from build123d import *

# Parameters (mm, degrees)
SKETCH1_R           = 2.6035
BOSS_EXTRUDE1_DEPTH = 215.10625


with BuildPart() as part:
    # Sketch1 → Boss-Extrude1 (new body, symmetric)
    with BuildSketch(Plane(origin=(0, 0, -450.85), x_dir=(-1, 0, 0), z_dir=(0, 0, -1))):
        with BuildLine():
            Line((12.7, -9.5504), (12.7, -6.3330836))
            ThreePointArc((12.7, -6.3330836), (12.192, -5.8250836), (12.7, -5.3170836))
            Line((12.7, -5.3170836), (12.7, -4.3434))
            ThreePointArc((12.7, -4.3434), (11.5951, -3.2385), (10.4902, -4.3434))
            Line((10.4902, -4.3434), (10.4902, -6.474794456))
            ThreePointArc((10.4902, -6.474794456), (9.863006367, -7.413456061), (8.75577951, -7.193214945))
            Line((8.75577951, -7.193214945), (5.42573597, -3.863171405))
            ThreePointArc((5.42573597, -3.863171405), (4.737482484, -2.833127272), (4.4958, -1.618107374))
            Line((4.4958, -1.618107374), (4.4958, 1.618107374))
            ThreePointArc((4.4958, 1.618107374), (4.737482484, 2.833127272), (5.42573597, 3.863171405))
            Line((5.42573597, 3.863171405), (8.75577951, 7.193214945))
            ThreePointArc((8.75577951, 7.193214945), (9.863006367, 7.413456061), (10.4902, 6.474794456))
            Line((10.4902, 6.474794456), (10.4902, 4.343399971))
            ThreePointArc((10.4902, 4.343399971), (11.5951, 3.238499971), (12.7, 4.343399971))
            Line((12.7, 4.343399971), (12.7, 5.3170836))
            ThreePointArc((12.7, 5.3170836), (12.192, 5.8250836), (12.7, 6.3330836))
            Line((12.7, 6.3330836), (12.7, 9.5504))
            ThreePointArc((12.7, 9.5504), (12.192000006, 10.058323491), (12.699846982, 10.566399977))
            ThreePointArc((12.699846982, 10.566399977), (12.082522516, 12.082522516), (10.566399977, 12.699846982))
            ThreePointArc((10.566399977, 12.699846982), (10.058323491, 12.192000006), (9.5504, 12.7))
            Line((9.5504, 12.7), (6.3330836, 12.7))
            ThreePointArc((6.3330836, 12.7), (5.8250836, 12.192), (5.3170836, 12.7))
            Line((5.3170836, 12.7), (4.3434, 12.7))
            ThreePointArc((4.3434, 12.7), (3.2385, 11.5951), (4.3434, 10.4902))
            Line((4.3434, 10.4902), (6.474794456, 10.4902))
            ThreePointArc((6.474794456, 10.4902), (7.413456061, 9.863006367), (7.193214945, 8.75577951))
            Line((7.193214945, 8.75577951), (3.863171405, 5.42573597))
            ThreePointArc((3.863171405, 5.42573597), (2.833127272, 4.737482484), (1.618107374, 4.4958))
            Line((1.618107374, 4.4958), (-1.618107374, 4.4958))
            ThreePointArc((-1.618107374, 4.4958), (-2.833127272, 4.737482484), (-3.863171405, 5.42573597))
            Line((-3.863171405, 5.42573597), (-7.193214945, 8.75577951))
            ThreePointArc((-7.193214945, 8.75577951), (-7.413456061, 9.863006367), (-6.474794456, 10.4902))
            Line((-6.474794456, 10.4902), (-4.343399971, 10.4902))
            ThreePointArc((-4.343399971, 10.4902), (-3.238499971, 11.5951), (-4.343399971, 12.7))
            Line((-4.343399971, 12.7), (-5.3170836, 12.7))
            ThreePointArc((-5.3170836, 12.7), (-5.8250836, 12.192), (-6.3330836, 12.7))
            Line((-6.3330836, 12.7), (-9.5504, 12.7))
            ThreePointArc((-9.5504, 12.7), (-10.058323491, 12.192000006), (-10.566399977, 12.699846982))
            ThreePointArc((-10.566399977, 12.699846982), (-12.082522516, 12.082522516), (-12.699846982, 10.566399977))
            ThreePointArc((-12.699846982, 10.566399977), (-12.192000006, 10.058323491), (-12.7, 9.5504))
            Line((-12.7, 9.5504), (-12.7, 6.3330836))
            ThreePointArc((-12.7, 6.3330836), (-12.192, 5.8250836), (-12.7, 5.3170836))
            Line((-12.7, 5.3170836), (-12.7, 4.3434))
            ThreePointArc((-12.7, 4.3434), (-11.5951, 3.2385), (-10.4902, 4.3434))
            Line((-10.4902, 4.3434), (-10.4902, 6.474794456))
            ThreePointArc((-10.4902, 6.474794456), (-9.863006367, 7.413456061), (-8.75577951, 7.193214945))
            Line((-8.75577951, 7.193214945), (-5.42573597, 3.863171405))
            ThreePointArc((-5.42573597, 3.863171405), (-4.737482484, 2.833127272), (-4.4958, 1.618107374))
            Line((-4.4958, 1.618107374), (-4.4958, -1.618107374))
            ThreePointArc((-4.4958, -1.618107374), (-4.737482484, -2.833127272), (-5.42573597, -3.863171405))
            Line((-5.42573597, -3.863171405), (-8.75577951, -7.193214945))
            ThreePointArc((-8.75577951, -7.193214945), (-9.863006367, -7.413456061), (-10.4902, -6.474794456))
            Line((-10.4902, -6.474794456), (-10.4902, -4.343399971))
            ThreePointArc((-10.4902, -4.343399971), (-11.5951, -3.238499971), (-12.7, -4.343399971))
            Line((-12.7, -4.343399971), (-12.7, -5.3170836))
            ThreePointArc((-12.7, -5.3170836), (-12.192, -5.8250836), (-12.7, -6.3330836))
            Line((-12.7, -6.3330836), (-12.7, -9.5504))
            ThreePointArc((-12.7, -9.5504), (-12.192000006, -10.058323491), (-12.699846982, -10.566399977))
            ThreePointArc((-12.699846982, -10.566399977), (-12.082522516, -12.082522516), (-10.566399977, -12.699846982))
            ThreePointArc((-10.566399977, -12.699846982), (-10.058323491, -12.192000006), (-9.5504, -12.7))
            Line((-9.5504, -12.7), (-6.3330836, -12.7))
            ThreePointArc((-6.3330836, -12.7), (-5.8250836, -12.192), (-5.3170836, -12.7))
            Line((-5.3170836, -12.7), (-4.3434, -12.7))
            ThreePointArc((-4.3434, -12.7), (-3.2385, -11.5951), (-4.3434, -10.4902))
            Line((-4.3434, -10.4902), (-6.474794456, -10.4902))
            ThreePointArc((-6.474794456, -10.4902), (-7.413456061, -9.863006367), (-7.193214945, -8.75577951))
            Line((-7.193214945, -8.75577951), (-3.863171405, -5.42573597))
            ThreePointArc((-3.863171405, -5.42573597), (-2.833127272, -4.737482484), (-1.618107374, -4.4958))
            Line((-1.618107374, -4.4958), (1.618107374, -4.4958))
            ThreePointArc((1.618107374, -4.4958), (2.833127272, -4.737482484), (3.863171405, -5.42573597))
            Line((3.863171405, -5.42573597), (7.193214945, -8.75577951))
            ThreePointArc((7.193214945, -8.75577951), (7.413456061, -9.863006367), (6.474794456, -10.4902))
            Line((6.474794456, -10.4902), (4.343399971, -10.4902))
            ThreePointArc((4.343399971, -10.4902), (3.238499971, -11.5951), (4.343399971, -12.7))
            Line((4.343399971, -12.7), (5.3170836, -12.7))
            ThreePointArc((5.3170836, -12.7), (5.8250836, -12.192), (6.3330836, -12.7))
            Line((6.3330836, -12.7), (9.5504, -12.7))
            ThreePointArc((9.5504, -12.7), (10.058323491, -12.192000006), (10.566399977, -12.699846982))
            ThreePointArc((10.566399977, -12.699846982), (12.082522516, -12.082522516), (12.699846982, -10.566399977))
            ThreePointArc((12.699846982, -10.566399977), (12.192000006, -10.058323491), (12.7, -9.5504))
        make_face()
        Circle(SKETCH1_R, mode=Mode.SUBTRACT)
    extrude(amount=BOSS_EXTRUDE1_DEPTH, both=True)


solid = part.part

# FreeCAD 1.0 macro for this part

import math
import FreeCAD as App
import Part
import Sketcher

V = App.Vector
Q = App.Units.Quantity

doc = App.newDocument("Part")
params = doc.addObject("Spreadsheet::Sheet", "Params")
for row, (alias, value) in enumerate([
    ("sketch1_radius", "0.02 in"),
    ("sketch1_radius2", "0.04 in"),
    ("sketch1_diameter", "0.205 in"),
    ("sketch1_radius3", "0.125 in"),
    ("sketch1_radius4", "0.083 in"),
    ("pad1_length", "16.9375 in"),
], start=1):
    params.set(f"A{row}", alias)
    params.set(f"B{row}", "=" + value)
    params.setAlias(f"B{row}", alias)

body = doc.addObject("PartDesign::Body", "Body")

sketch1 = doc.addObject("Sketcher::SketchObject", "Sketch")
body.addObject(sketch1)
sketch1.AttachmentSupport = (doc.XY_Plane, [""])
sketch1.MapMode = "FlatFace"
sketch1.AttachmentOffset = App.Placement(V(0, 0, -17.75 * 25.4), App.Rotation())
sketch1.addGeometry([
    Part.LineSegment(V(-12.7, -9.6, 0), V(-12.7, -6.3, 0)),
    Part.ArcOfCircle(Part.Circle(V(-12.7, -5.8, 0), V(0, 0, 1), 0.5), math.radians(-90), math.radians(90)),
    Part.LineSegment(V(-12.7, -5.3, 0), V(-12.7, -4.3, 0)),
    Part.ArcOfCircle(Part.Circle(V(-11.6, -4.3, 0), V(0, 0, 1), 1.1), math.radians(0), math.radians(180)),
    Part.LineSegment(V(-10.5, -4.3, 0), V(-10.5, -6.5, 0)),
    Part.ArcOfCircle(Part.Circle(V(-9.5, -6.5, 0), V(0, 0, 1), 1), math.radians(180), math.radians(315)),
    Part.LineSegment(V(-8.8, -7.2, 0), V(-5.4, -3.9, 0)),
    Part.ArcOfCircle(Part.Circle(V(-7.7, -1.6, 0), V(0, 0, 1), 3.2), math.radians(-45), math.radians(0)),
    Part.LineSegment(V(-4.5, -1.6, 0), V(-4.5, 1.6, 0)),
    Part.ArcOfCircle(Part.Circle(V(-7.7, 1.6, 0), V(0, 0, 1), 3.2), math.radians(0), math.radians(45)),
    Part.LineSegment(V(-5.4, 3.9, 0), V(-8.8, 7.2, 0)),
    Part.ArcOfCircle(Part.Circle(V(-9.5, 6.5, 0), V(0, 0, 1), 1), math.radians(45), math.radians(180)),
    Part.LineSegment(V(-10.5, 6.5, 0), V(-10.5, 4.3, 0)),
    Part.ArcOfCircle(Part.Circle(V(-11.6, 4.3, 0), V(0, 0, 1), 1.1), math.radians(180), math.radians(360)),
    Part.LineSegment(V(-12.7, 4.3, 0), V(-12.7, 5.3, 0)),
    Part.ArcOfCircle(Part.Circle(V(-12.7, 5.8, 0), V(0, 0, 1), 0.5), math.radians(-90), math.radians(90)),
    Part.LineSegment(V(-12.7, 6.3, 0), V(-12.7, 9.6, 0)),
    Part.ArcOfCircle(Part.Circle(V(-12.7, 10.1, 0), V(0, 0, 1), 0.5), math.radians(-90), math.radians(90)),
    Part.ArcOfCircle(Part.Circle(V(-10.6, 10.6, 0), V(0, 0, 1), 2.1), math.radians(89), math.radians(181)),
    Part.ArcOfCircle(Part.Circle(V(-10.1, 12.7, 0), V(0, 0, 1), 0.5), math.radians(-180), math.radians(0)),
    Part.LineSegment(V(-9.6, 12.7, 0), V(-6.3, 12.7, 0)),
    Part.ArcOfCircle(Part.Circle(V(-5.8, 12.7, 0), V(0, 0, 1), 0.5), math.radians(180), math.radians(360)),
    Part.LineSegment(V(-5.3, 12.7, 0), V(-4.3, 12.7, 0)),
    Part.ArcOfCircle(Part.Circle(V(-4.3, 11.6, 0), V(0, 0, 1), 1.1), math.radians(-90), math.radians(90)),
    Part.LineSegment(V(-4.3, 10.5, 0), V(-6.5, 10.5, 0)),
    Part.ArcOfCircle(Part.Circle(V(-6.5, 9.5, 0), V(0, 0, 1), 1), math.radians(90), math.radians(225)),
    Part.LineSegment(V(-7.2, 8.8, 0), V(-3.9, 5.4, 0)),
    Part.ArcOfCircle(Part.Circle(V(-1.6, 7.7, 0), V(0, 0, 1), 3.2), math.radians(-135), math.radians(-90)),
    Part.LineSegment(V(-1.6, 4.5, 0), V(1.6, 4.5, 0)),
    Part.ArcOfCircle(Part.Circle(V(1.6, 7.7, 0), V(0, 0, 1), 3.2), math.radians(-90), math.radians(-45)),
    Part.LineSegment(V(3.9, 5.4, 0), V(7.2, 8.8, 0)),
    Part.ArcOfCircle(Part.Circle(V(6.5, 9.5, 0), V(0, 0, 1), 1), math.radians(-45), math.radians(90)),
    Part.LineSegment(V(6.5, 10.5, 0), V(4.3, 10.5, 0)),
    Part.ArcOfCircle(Part.Circle(V(4.3, 11.6, 0), V(0, 0, 1), 1.1), math.radians(90), math.radians(270)),
    Part.LineSegment(V(4.3, 12.7, 0), V(5.3, 12.7, 0)),
    Part.ArcOfCircle(Part.Circle(V(5.8, 12.7, 0), V(0, 0, 1), 0.5), math.radians(180), math.radians(360)),
    Part.LineSegment(V(6.3, 12.7, 0), V(9.6, 12.7, 0)),
    Part.ArcOfCircle(Part.Circle(V(10.1, 12.7, 0), V(0, 0, 1), 0.5), math.radians(180), math.radians(360)),
    Part.ArcOfCircle(Part.Circle(V(10.6, 10.6, 0), V(0, 0, 1), 2.1), math.radians(-1), math.radians(91)),
    Part.ArcOfCircle(Part.Circle(V(12.7, 10.1, 0), V(0, 0, 1), 0.5), math.radians(90), math.radians(270)),
    Part.LineSegment(V(12.7, 9.6, 0), V(12.7, 6.3, 0)),
    Part.ArcOfCircle(Part.Circle(V(12.7, 5.8, 0), V(0, 0, 1), 0.5), math.radians(90), math.radians(270)),
    Part.LineSegment(V(12.7, 5.3, 0), V(12.7, 4.3, 0)),
    Part.ArcOfCircle(Part.Circle(V(11.6, 4.3, 0), V(0, 0, 1), 1.1), math.radians(180), math.radians(360)),
    Part.LineSegment(V(10.5, 4.3, 0), V(10.5, 6.5, 0)),
    Part.ArcOfCircle(Part.Circle(V(9.5, 6.5, 0), V(0, 0, 1), 1), math.radians(0), math.radians(135)),
    Part.LineSegment(V(8.8, 7.2, 0), V(5.4, 3.9, 0)),
    Part.ArcOfCircle(Part.Circle(V(7.7, 1.6, 0), V(0, 0, 1), 3.2), math.radians(135), math.radians(180)),
    Part.LineSegment(V(4.5, 1.6, 0), V(4.5, -1.6, 0)),
    Part.ArcOfCircle(Part.Circle(V(7.7, -1.6, 0), V(0, 0, 1), 3.2), math.radians(180), math.radians(225)),
    Part.LineSegment(V(5.4, -3.9, 0), V(8.8, -7.2, 0)),
    Part.ArcOfCircle(Part.Circle(V(9.5, -6.5, 0), V(0, 0, 1), 1), math.radians(-135), math.radians(0)),
    Part.LineSegment(V(10.5, -6.5, 0), V(10.5, -4.3, 0)),
    Part.ArcOfCircle(Part.Circle(V(11.6, -4.3, 0), V(0, 0, 1), 1.1), math.radians(0), math.radians(180)),
    Part.LineSegment(V(12.7, -4.3, 0), V(12.7, -5.3, 0)),
    Part.ArcOfCircle(Part.Circle(V(12.7, -5.8, 0), V(0, 0, 1), 0.5), math.radians(90), math.radians(270)),
    Part.LineSegment(V(12.7, -6.3, 0), V(12.7, -9.6, 0)),
    Part.ArcOfCircle(Part.Circle(V(12.7, -10.1, 0), V(0, 0, 1), 0.5), math.radians(90), math.radians(270)),
    Part.ArcOfCircle(Part.Circle(V(10.6, -10.6, 0), V(0, 0, 1), 2.1), math.radians(-91), math.radians(1)),
    Part.ArcOfCircle(Part.Circle(V(10.1, -12.7, 0), V(0, 0, 1), 0.5), math.radians(0), math.radians(180)),
    Part.LineSegment(V(9.6, -12.7, 0), V(6.3, -12.7, 0)),
    Part.ArcOfCircle(Part.Circle(V(5.8, -12.7, 0), V(0, 0, 1), 0.5), math.radians(0), math.radians(180)),
    Part.LineSegment(V(5.3, -12.7, 0), V(4.3, -12.7, 0)),
    Part.ArcOfCircle(Part.Circle(V(4.3, -11.6, 0), V(0, 0, 1), 1.1), math.radians(90), math.radians(270)),
    Part.LineSegment(V(4.3, -10.5, 0), V(6.5, -10.5, 0)),
    Part.ArcOfCircle(Part.Circle(V(6.5, -9.5, 0), V(0, 0, 1), 1), math.radians(-90), math.radians(45)),
    Part.LineSegment(V(7.2, -8.8, 0), V(3.9, -5.4, 0)),
    Part.ArcOfCircle(Part.Circle(V(1.6, -7.7, 0), V(0, 0, 1), 3.2), math.radians(45), math.radians(90)),
    Part.LineSegment(V(1.6, -4.5, 0), V(-1.6, -4.5, 0)),
    Part.ArcOfCircle(Part.Circle(V(-1.6, -7.7, 0), V(0, 0, 1), 3.2), math.radians(90), math.radians(135)),
    Part.LineSegment(V(-3.9, -5.4, 0), V(-7.2, -8.8, 0)),
    Part.ArcOfCircle(Part.Circle(V(-6.5, -9.5, 0), V(0, 0, 1), 1), math.radians(135), math.radians(270)),
    Part.LineSegment(V(-6.5, -10.5, 0), V(-4.3, -10.5, 0)),
    Part.ArcOfCircle(Part.Circle(V(-4.3, -11.6, 0), V(0, 0, 1), 1.1), math.radians(-90), math.radians(90)),
    Part.LineSegment(V(-4.3, -12.7, 0), V(-5.3, -12.7, 0)),
    Part.ArcOfCircle(Part.Circle(V(-5.8, -12.7, 0), V(0, 0, 1), 0.5), math.radians(0), math.radians(180)),
    Part.LineSegment(V(-6.3, -12.7, 0), V(-9.6, -12.7, 0)),
    Part.ArcOfCircle(Part.Circle(V(-10.1, -12.7, 0), V(0, 0, 1), 0.5), math.radians(0), math.radians(180)),
    Part.ArcOfCircle(Part.Circle(V(-10.6, -10.6, 0), V(0, 0, 1), 2.1), math.radians(179), math.radians(271)),
    Part.ArcOfCircle(Part.Circle(V(-12.7, -10.1, 0), V(0, 0, 1), 0.5), math.radians(-90), math.radians(90)),
    Part.Circle(V(0, 0, 0), V(0, 0, 1), 2.6),
], False)
sketch1.addConstraint([
    Sketcher.Constraint("Coincident", 0, 2, 1, 1),
    Sketcher.Constraint("Coincident", 1, 2, 2, 1),
    Sketcher.Constraint("Tangent", 2, 2, 3, 2),
    Sketcher.Constraint("Tangent", 3, 1, 4, 1),
    Sketcher.Constraint("Tangent", 4, 2, 5, 1),
    Sketcher.Constraint("Tangent", 5, 2, 6, 1),
    Sketcher.Constraint("Tangent", 6, 2, 7, 1),
    Sketcher.Constraint("Tangent", 7, 2, 8, 1),
    Sketcher.Constraint("Tangent", 8, 2, 9, 1),
    Sketcher.Constraint("Tangent", 9, 2, 10, 1),
    Sketcher.Constraint("Tangent", 10, 2, 11, 1),
    Sketcher.Constraint("Tangent", 11, 2, 12, 1),
    Sketcher.Constraint("Tangent", 12, 2, 13, 2),
    Sketcher.Constraint("Tangent", 13, 1, 14, 1),
    Sketcher.Constraint("Coincident", 14, 2, 15, 1),
    Sketcher.Constraint("Coincident", 15, 2, 16, 1),
    Sketcher.Constraint("Coincident", 16, 2, 17, 1),
    Sketcher.Constraint("Coincident", 17, 2, 18, 2),
    Sketcher.Constraint("Coincident", 18, 1, 19, 1),
    Sketcher.Constraint("Coincident", 19, 2, 20, 1),
    Sketcher.Constraint("Coincident", 20, 2, 21, 1),
    Sketcher.Constraint("Coincident", 21, 2, 22, 1),
    Sketcher.Constraint("Tangent", 22, 2, 23, 2),
    Sketcher.Constraint("Tangent", 23, 1, 24, 1),
    Sketcher.Constraint("Tangent", 24, 2, 25, 1),
    Sketcher.Constraint("Tangent", 25, 2, 26, 1),
    Sketcher.Constraint("Tangent", 26, 2, 27, 1),
    Sketcher.Constraint("Tangent", 27, 2, 28, 1),
    Sketcher.Constraint("Tangent", 28, 2, 29, 1),
    Sketcher.Constraint("Tangent", 29, 2, 30, 1),
    Sketcher.Constraint("Tangent", 30, 2, 31, 1),
    Sketcher.Constraint("Tangent", 31, 2, 32, 1),
    Sketcher.Constraint("Tangent", 32, 2, 33, 2),
    Sketcher.Constraint("Tangent", 33, 1, 34, 1),
    Sketcher.Constraint("Coincident", 34, 2, 35, 1),
    Sketcher.Constraint("Coincident", 35, 2, 36, 1),
    Sketcher.Constraint("Coincident", 36, 2, 37, 1),
    Sketcher.Constraint("Coincident", 37, 2, 38, 2),
    Sketcher.Constraint("Coincident", 38, 1, 39, 1),
    Sketcher.Constraint("Coincident", 39, 2, 40, 1),
    Sketcher.Constraint("Coincident", 40, 2, 41, 1),
    Sketcher.Constraint("Coincident", 41, 2, 42, 1),
    Sketcher.Constraint("Tangent", 42, 2, 43, 2),
    Sketcher.Constraint("Tangent", 43, 1, 44, 1),
    Sketcher.Constraint("Tangent", 44, 2, 45, 1),
    Sketcher.Constraint("Tangent", 45, 2, 46, 1),
    Sketcher.Constraint("Tangent", 46, 2, 47, 1),
    Sketcher.Constraint("Tangent", 47, 2, 48, 1),
    Sketcher.Constraint("Tangent", 48, 2, 49, 1),
    Sketcher.Constraint("Tangent", 49, 2, 50, 1),
    Sketcher.Constraint("Tangent", 50, 2, 51, 1),
    Sketcher.Constraint("Tangent", 51, 2, 52, 1),
    Sketcher.Constraint("Tangent", 52, 2, 53, 2),
    Sketcher.Constraint("Tangent", 53, 1, 54, 1),
    Sketcher.Constraint("Coincident", 54, 2, 55, 1),
    Sketcher.Constraint("Coincident", 55, 2, 56, 1),
    Sketcher.Constraint("Coincident", 56, 2, 57, 1),
    Sketcher.Constraint("Coincident", 57, 2, 58, 2),
    Sketcher.Constraint("Coincident", 58, 1, 59, 1),
    Sketcher.Constraint("Coincident", 59, 2, 60, 1),
    Sketcher.Constraint("Coincident", 60, 2, 61, 1),
    Sketcher.Constraint("Coincident", 61, 2, 62, 1),
    Sketcher.Constraint("Tangent", 62, 2, 63, 2),
    Sketcher.Constraint("Tangent", 63, 1, 64, 1),
    Sketcher.Constraint("Tangent", 64, 2, 65, 1),
    Sketcher.Constraint("Tangent", 65, 2, 66, 1),
    Sketcher.Constraint("Tangent", 66, 2, 67, 1),
    Sketcher.Constraint("Tangent", 67, 2, 68, 1),
    Sketcher.Constraint("Tangent", 68, 2, 69, 1),
    Sketcher.Constraint("Tangent", 69, 2, 70, 1),
    Sketcher.Constraint("Tangent", 70, 2, 71, 1),
    Sketcher.Constraint("Tangent", 71, 2, 72, 1),
    Sketcher.Constraint("Tangent", 72, 2, 73, 2),
    Sketcher.Constraint("Tangent", 73, 1, 74, 1),
    Sketcher.Constraint("Coincident", 74, 2, 75, 1),
    Sketcher.Constraint("Coincident", 75, 2, 76, 1),
    Sketcher.Constraint("Coincident", 76, 2, 77, 1),
    Sketcher.Constraint("Coincident", 77, 2, 78, 2),
    Sketcher.Constraint("Coincident", 78, 1, 79, 1),
    Sketcher.Constraint("Coincident", 79, 2, 0, 1),
    Sketcher.Constraint("Vertical", 0),
    Sketcher.Constraint("Vertical", 2),
    Sketcher.Constraint("Vertical", 4),
    Sketcher.Constraint("Vertical", 8),
    Sketcher.Constraint("Vertical", 12),
    Sketcher.Constraint("Vertical", 14),
    Sketcher.Constraint("Vertical", 16),
    Sketcher.Constraint("Horizontal", 20),
    Sketcher.Constraint("Horizontal", 22),
    Sketcher.Constraint("Horizontal", 24),
    Sketcher.Constraint("Horizontal", 28),
    Sketcher.Constraint("Horizontal", 32),
    Sketcher.Constraint("Horizontal", 34),
    Sketcher.Constraint("Horizontal", 36),
    Sketcher.Constraint("Vertical", 40),
    Sketcher.Constraint("Vertical", 42),
    Sketcher.Constraint("Vertical", 44),
    Sketcher.Constraint("Vertical", 48),
    Sketcher.Constraint("Vertical", 52),
    Sketcher.Constraint("Vertical", 54),
    Sketcher.Constraint("Vertical", 56),
    Sketcher.Constraint("Horizontal", 60),
    Sketcher.Constraint("Horizontal", 62),
    Sketcher.Constraint("Horizontal", 64),
    Sketcher.Constraint("Horizontal", 68),
    Sketcher.Constraint("Horizontal", 72),
    Sketcher.Constraint("Horizontal", 74),
    Sketcher.Constraint("Horizontal", 76),
    Sketcher.Constraint("Coincident", 80, 3, -1, 1),
    Sketcher.Constraint("Equal", 7, 9),
    Sketcher.Constraint("Equal", 5, 11),
    Sketcher.Constraint("Equal", 3, 13),
    Sketcher.Constraint("Equal", 1, 15),
    Sketcher.Constraint("Equal", 15, 17),
    Sketcher.Constraint("Equal", 17, 19),
    Sketcher.Constraint("Equal", 19, 21),
    Sketcher.Constraint("Equal", 13, 23),
    Sketcher.Constraint("Equal", 11, 25),
    Sketcher.Constraint("Equal", 9, 27),
    Sketcher.Constraint("Equal", 27, 29),
    Sketcher.Constraint("Equal", 25, 31),
    Sketcher.Constraint("Equal", 23, 33),
    Sketcher.Constraint("Equal", 21, 35),
    Sketcher.Constraint("Equal", 35, 37),
    Sketcher.Constraint("Equal", 18, 38),
    Sketcher.Constraint("Equal", 37, 39),
    Sketcher.Constraint("Equal", 39, 41),
    Sketcher.Constraint("Equal", 33, 43),
    Sketcher.Constraint("Equal", 31, 45),
    Sketcher.Constraint("Equal", 29, 47),
    Sketcher.Constraint("Equal", 47, 49),
    Sketcher.Constraint("Equal", 45, 51),
    Sketcher.Constraint("Equal", 43, 53),
    Sketcher.Constraint("Equal", 41, 55),
    Sketcher.Constraint("Equal", 55, 57),
    Sketcher.Constraint("Equal", 38, 58),
    Sketcher.Constraint("Equal", 57, 59),
    Sketcher.Constraint("Equal", 59, 61),
    Sketcher.Constraint("Equal", 53, 63),
    Sketcher.Constraint("Equal", 51, 65),
    Sketcher.Constraint("Equal", 49, 67),
    Sketcher.Constraint("Equal", 67, 69),
    Sketcher.Constraint("Equal", 65, 71),
    Sketcher.Constraint("Equal", 63, 73),
    Sketcher.Constraint("Equal", 61, 75),
    Sketcher.Constraint("Equal", 75, 77),
    Sketcher.Constraint("Equal", 58, 78),
    Sketcher.Constraint("Equal", 77, 79),
    Sketcher.Constraint("Symmetric", 1, 3, 41, 3, -1, 1),
    Sketcher.Constraint("Symmetric", 3, 3, 43, 3, -1, 1),
    Sketcher.Constraint("Symmetric", 7, 3, 47, 3, -1, 1),
    Sketcher.Constraint("Symmetric", 11, 3, 51, 3, -1, 1),
    Sketcher.Constraint("Symmetric", 15, 3, 55, 3, -1, 1),
    Sketcher.Constraint("Symmetric", 17, 3, 57, 3, -1, 1),
    Sketcher.Constraint("Symmetric", 18, 3, 58, 3, -1, 1),
    Sketcher.Constraint("Symmetric", 19, 3, 59, 3, -1, 1),
    Sketcher.Constraint("Symmetric", 21, 3, 61, 3, -1, 1),
    Sketcher.Constraint("Symmetric", 23, 3, 63, 3, -1, 1),
    Sketcher.Constraint("Symmetric", 27, 3, 67, 3, -1, 1),
    Sketcher.Constraint("Symmetric", 31, 3, 71, 3, -1, 1),
    Sketcher.Constraint("Symmetric", 35, 3, 75, 3, -1, 1),
    Sketcher.Constraint("Symmetric", 37, 3, 77, 3, -1, 1),
    Sketcher.Constraint("Symmetric", 38, 3, 78, 3, -1, 1),
    Sketcher.Constraint("Symmetric", 39, 3, 79, 3, -1, 1),
    Sketcher.Constraint("Symmetric", 25, 3, 31, 3, -2),
    Sketcher.Constraint("Symmetric", 21, 3, 35, 3, -2),
    Sketcher.Constraint("Symmetric", 19, 3, 37, 3, -2),
    Sketcher.Constraint("Symmetric", 18, 3, 38, 3, -2),
    Sketcher.Constraint("Symmetric", 17, 3, 39, 3, -2),
    Sketcher.Constraint("Symmetric", 15, 3, 41, 3, -2),
    Sketcher.Constraint("Symmetric", 13, 3, 43, 3, -2),
    Sketcher.Constraint("Symmetric", 10, 2, 45, 2, -2),
    Sketcher.Constraint("Symmetric", 6, 2, 49, 2, -2),
    Sketcher.Constraint("Symmetric", 66, 2, 69, 2, -2),
    Sketcher.Constraint("Perpendicular", 6, 10),
    Sketcher.Constraint("Parallel", 10, 26),
    Sketcher.Constraint("Perpendicular", 26, 30),
    Sketcher.Constraint("Horizontal", 19, 3, 21, 3),
    Sketcher.Constraint("Horizontal", 3, 3, 53, 3),
    Sketcher.Constraint("Horizontal", 37, 3, 19, 2),
    Sketcher.Constraint("Horizontal", 20, 2, 21, 2),
    Sketcher.Constraint("Horizontal", 34, 2, 35, 2),
    Sketcher.Constraint("Horizontal", 77, 3, 59, 2),
    Sketcher.Constraint("Horizontal", 74, 2, 75, 2),
    Sketcher.Constraint("Vertical", 15, 3, 17, 3),
    Sketcher.Constraint("Vertical", 33, 3, 63, 3),
    Sketcher.Constraint("Vertical", 23, 3, 73, 3),
    Sketcher.Constraint("Vertical", 79, 3, 0, 2),
    Sketcher.Constraint("Vertical", 0, 2, 1, 2),
    Sketcher.Constraint("Vertical", 14, 2, 15, 2),
    Sketcher.Constraint("Vertical", 57, 3, 39, 2),
    Sketcher.Constraint("Vertical", 54, 2, 55, 2),
    Sketcher.Constraint("Equal", 76, 0),
    Sketcher.Constraint("Equal", 74, 2),
    Sketcher.Constraint("Equal", 72, 4),
    Sketcher.Constraint("Equal", 68, 8),
    Sketcher.Constraint("Equal", 10, 26),
    Sketcher.Constraint("Radius", 1, Q("0.02 in")),
    Sketcher.Constraint("Radius", 5, Q("0.04 in")),
    Sketcher.Constraint("Diameter", 80, Q("0.205 in")),
    Sketcher.Constraint("Radius", 7, Q("0.125 in")),
    Sketcher.Constraint("Radius", 18, Q("0.083 in")),
    Sketcher.Constraint("DistanceX", 1, 3, -1, 1, Q("0.5 in")),
    Sketcher.Constraint("DistanceY", -1, 1, 19, 3, Q("0.5 in")),
    Sketcher.Constraint("Radius", 3, Q("0.0435 in")),
    Sketcher.Constraint("DistanceY", 3, 3, -1, 1, Q("0.171 in")),
    Sketcher.Constraint("DistanceX", 7, 3, -1, 1, Q("0.302 in")),
    Sketcher.Constraint("DistanceY", -1, 1, 17, 3, Q("0.396 in")),
    Sketcher.Constraint("DistanceX", 18, 3, -1, 1, Q("0.417 in")),
    Sketcher.Constraint("DistanceY", -1, 1, 18, 3, Q("0.417 in")),
    Sketcher.Constraint("DistanceX", 20, 1, 20, 2, Q("3.217316 mm")),
    Sketcher.Constraint("DistanceX", 24, 2, 24, 1, Q("2.131394 mm")),
])
sketch1.setExpression("Constraints[197]", "Params.sketch1_radius")
sketch1.setExpression("Constraints[198]", "Params.sketch1_radius2")
sketch1.setExpression("Constraints[199]", "Params.sketch1_diameter")
sketch1.setExpression("Constraints[200]", "Params.sketch1_radius3")
sketch1.setExpression("Constraints[201]", "Params.sketch1_radius4")
pad1 = doc.addObject("PartDesign::Pad", "Pad")
body.addObject(pad1)
pad1.Profile = sketch1
pad1.setExpression("Length", "Params.pad1_length")
pad1.Midplane = True

doc.recompute()
